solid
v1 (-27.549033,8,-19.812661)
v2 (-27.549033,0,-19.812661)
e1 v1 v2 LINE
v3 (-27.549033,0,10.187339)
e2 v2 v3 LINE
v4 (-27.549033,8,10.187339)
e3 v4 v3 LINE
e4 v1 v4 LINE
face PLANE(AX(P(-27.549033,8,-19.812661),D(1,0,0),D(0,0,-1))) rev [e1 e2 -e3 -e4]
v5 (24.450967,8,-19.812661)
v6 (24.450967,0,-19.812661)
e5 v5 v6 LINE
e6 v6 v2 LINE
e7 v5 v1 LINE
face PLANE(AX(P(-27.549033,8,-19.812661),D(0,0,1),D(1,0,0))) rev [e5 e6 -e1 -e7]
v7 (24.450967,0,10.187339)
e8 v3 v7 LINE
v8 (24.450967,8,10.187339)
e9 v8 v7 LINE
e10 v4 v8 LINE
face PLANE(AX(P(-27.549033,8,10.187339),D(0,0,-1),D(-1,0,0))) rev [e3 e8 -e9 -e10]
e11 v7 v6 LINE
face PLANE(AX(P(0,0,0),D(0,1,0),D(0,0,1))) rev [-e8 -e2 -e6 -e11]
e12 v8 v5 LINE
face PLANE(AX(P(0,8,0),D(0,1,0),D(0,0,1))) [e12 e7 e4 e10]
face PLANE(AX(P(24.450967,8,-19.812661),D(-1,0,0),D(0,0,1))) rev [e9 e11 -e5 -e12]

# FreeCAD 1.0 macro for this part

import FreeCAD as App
import Part
import Sketcher

V = App.Vector
Q = App.Units.Quantity


def add_polygon(sketch, points):
    """Adds a closed chain of lines whose ends are joined by coincident constraints."""
    first, n = sketch.GeometryCount, len(points)
    for a, b in zip(points, points[1:] + points[:1]):
        sketch.addGeometry(Part.LineSegment(App.Vector(*a, 0), App.Vector(*b, 0)), False)
    for i in range(n):
        sketch.addConstraint(Sketcher.Constraint("Coincident", first + i, 2, first + (i + 1) % n, 1))

doc = App.newDocument("Part")
params = doc.addObject("Spreadsheet::Sheet", "Params")
for row, (alias, value) in enumerate([
    ("sketch1_width", "52 mm"),
    ("sketch1_height", "30 mm"),
    ("pad1_length", "8 mm"),
], start=1):
    params.set(f"A{row}", alias)
    params.set(f"B{row}", "=" + value)
    params.setAlias(f"B{row}", alias)

body = doc.addObject("PartDesign::Body", "Body")

# Sketch on XZ plane
sketch1 = body.newObject("Sketcher::SketchObject", "Sketch")
sketch1.AttachmentSupport = (doc.getObject("XZ_Plane"), [""])
sketch1.MapMode = "FlatFace"
add_polygon(sketch1, [(-28, -20), (-28, 10), (24, 10), (24, -20)])  # lines 0-3
sketch1.addConstraint(Sketcher.Constraint("Vertical", 0))
sketch1.addConstraint(Sketcher.Constraint("Horizontal", 1))
sketch1.addConstraint(Sketcher.Constraint("Vertical", 2))
sketch1.addConstraint(Sketcher.Constraint("Horizontal", 3))
sketch1.addConstraint(Sketcher.Constraint("DistanceX", 1, 1, 1, 2, Q("52 mm")))
sketch1.addConstraint(Sketcher.Constraint("DistanceY", 0, 1, 0, 2, Q("30 mm")))
sketch1.addConstraint(Sketcher.Constraint("DistanceY", -1, 1, 0, 2, Q("10.187339 mm")))
sketch1.addConstraint(Sketcher.Constraint("DistanceX", 0, 2, -1, 1, Q("27.549033 mm")))
sketch1.setExpression("Constraints[8]", "Params.sketch1_width")
sketch1.setExpression("Constraints[9]", "Params.sketch1_height")
pad1 = body.newObject("PartDesign::Pad", "Pad")
pad1.Profile = sketch1
pad1.setExpression("Length", "Params.pad1_length")
pad1.Reversed = True

doc.recompute()
